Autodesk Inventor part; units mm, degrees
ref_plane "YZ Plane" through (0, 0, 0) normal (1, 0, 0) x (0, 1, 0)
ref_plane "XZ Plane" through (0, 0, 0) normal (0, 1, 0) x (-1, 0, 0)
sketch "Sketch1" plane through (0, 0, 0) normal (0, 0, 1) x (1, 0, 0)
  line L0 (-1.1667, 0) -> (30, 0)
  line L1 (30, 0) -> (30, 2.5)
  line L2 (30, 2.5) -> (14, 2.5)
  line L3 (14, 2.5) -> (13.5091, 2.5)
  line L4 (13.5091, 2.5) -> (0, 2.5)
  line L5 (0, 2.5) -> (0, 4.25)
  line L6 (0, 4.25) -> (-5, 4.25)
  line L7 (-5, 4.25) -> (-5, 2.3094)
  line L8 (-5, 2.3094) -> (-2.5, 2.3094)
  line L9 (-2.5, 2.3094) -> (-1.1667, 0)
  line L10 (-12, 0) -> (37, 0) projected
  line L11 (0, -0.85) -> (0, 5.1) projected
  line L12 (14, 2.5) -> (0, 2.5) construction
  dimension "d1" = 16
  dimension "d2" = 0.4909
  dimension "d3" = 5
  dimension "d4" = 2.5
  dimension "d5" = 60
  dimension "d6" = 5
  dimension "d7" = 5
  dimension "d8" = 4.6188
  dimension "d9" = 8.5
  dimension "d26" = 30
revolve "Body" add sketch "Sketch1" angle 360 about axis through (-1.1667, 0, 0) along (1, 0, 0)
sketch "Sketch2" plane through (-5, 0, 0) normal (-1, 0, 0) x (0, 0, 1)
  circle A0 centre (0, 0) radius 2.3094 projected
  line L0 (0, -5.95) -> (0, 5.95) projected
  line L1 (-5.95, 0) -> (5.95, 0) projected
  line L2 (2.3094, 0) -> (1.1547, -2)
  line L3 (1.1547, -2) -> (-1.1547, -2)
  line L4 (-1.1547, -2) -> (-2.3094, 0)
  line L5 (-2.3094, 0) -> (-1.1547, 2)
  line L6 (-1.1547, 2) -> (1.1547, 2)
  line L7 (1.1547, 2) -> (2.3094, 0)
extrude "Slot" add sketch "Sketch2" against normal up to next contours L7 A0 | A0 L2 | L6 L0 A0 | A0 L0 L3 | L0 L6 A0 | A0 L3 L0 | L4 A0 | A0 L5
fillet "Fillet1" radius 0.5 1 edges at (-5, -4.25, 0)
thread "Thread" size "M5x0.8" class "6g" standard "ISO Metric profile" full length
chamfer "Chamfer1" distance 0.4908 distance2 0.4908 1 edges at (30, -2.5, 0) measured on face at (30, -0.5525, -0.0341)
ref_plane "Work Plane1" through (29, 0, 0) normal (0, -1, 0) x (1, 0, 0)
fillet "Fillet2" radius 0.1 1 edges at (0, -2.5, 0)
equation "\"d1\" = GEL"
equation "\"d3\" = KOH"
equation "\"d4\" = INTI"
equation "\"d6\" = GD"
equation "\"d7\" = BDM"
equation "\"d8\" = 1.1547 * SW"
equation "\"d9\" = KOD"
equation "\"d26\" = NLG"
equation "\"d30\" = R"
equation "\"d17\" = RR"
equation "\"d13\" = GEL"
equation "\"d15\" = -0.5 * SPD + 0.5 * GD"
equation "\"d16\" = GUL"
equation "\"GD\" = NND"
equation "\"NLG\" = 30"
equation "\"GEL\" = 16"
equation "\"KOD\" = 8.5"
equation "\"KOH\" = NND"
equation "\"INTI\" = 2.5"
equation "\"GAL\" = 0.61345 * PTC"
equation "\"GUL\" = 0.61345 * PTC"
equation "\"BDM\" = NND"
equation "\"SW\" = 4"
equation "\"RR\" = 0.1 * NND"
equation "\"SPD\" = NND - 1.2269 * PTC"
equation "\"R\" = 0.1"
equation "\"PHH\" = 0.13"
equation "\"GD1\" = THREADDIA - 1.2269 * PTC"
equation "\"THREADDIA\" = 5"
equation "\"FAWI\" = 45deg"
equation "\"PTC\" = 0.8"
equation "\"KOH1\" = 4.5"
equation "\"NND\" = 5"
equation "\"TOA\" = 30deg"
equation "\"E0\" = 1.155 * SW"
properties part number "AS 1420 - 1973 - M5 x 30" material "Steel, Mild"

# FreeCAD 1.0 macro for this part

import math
import FreeCAD as App
import Part
import Sketcher
Q = App.Units.Quantity


def edges_at(feature, points):
    """Names of the edges that pass closest to the given points."""
    edges = feature.Shape.Edges
    near = lambda p: min(range(len(edges)), key=lambda i: edges[i].distToShape(Part.Vertex(*p))[0])
    return sorted({f"Edge{near(p) + 1}" for p in points})


def add_polygon(sketch, points):
    """Adds a closed chain of lines whose ends are joined by coincident constraints."""
    first, n = sketch.GeometryCount, len(points)
    for a, b in zip(points, points[1:] + points[:1]):
        sketch.addGeometry(Part.LineSegment(App.Vector(*a, 0), App.Vector(*b, 0)), False)
    for i in range(n):
        sketch.addConstraint(Sketcher.Constraint("Coincident", first + i, 2, first + (i + 1) % n, 1))

doc = App.newDocument("Part")
body = doc.addObject("PartDesign::Body", "Body")

sketch1 = body.newObject("Sketcher::SketchObject", "Sketch")
sketch1.AttachmentSupport = (doc.getObject("XY_Plane"), [""])
sketch1.MapMode = "FlatFace"
add_polygon(sketch1, [(-2.5, 2.3), (-1.2, 0), (30, 0), (30, 2.5), (0, 2.5), (0, 4.2), (-5, 4.2), (-5, 2.3)])
sketch1.addConstraint([
    Sketcher.Constraint("Horizontal", 1),
    Sketcher.Constraint("Vertical", 2),
    Sketcher.Constraint("Horizontal", 3),
    Sketcher.Constraint("Vertical", 4),
    Sketcher.Constraint("Horizontal", 5),
    Sketcher.Constraint("Vertical", 6),
    Sketcher.Constraint("Horizontal", 7),
    Sketcher.Constraint("PointOnObject", 0, 2, -1),
    Sketcher.Constraint("PointOnObject", 3, 2, -2),
    Sketcher.Constraint("Equal", 7, 2),
    Sketcher.Constraint("DistanceX", 3, 2, 3, 1, Q("30 mm")),
    Sketcher.Constraint("DistanceX", 5, 2, 5, 1, Q("5 mm")),
    Sketcher.Constraint("DistanceX", 7, 1, 7, 2, Q("2.5 mm")),
    Sketcher.Constraint("Angle", 0, Q("-60.0006 deg")),
    Sketcher.Constraint("DistanceY", 4, 1, 4, 2, Q("1.75 mm")),
    Sketcher.Constraint("DistanceX", 1, 1, 1, 2, Q("31.1667 mm")),
])
revolution = body.newObject("PartDesign::Revolution", "Revolution")
revolution.Profile = sketch1
revolution.ReferenceAxis = (sketch1, ["H_Axis"])
revolution.Angle = 360

sketch2 = body.newObject("Sketcher::SketchObject", "Sketch001")
sketch2.AttachmentSupport = (doc.getObject("YZ_Plane"), [""])
sketch2.MapMode = "FlatFace"
sketch2.AttachmentOffset = App.Placement(App.Vector(0, 0, -5), App.Rotation())
sketch2.addGeometry([
    Part.LineSegment(App.Vector(2, 1.2, 0), App.Vector(0, 2.3, 0)),
    Part.ArcOfCircle(Part.Circle(App.Vector(0, 0, 0), App.Vector(0, 0, 1), 2.3), math.radians(30), math.radians(90)),
    Part.ArcOfCircle(Part.Circle(App.Vector(0, 0, 0), App.Vector(0, 0, 1), 2.3), math.radians(90), math.radians(150)),
    Part.LineSegment(App.Vector(0, 2.3, 0), App.Vector(-2, 1.2, 0)),
    Part.ArcOfCircle(Part.Circle(App.Vector(0, 0, 0), App.Vector(0, 0, 1), 2.3), math.radians(-30), math.radians(30)),
    Part.LineSegment(App.Vector(2, -1.2, 0), App.Vector(2, 1.2, 0)),
    Part.LineSegment(App.Vector(-2, 1.2, 0), App.Vector(-2, -1.2, 0)),
    Part.ArcOfCircle(Part.Circle(App.Vector(0, 0, 0), App.Vector(0, 0, 1), 2.3), math.radians(150), math.radians(210)),
    Part.LineSegment(App.Vector(-2, -1.2, 0), App.Vector(0, -2.3, 0)),
    Part.ArcOfCircle(Part.Circle(App.Vector(0, 0, 0), App.Vector(0, 0, 1), 2.3), math.radians(-150), math.radians(-90)),
    Part.ArcOfCircle(Part.Circle(App.Vector(0, 0, 0), App.Vector(0, 0, 1), 2.3), math.radians(-90), math.radians(-30)),
    Part.LineSegment(App.Vector(0, -2.3, 0), App.Vector(2, -1.2, 0)),
], False)
sketch2.addConstraint([
    Sketcher.Constraint("Coincident", 0, 1, 1, 1),
    Sketcher.Constraint("Coincident", 1, 2, 0, 2),
    Sketcher.Constraint("Coincident", 2, 1, 3, 1),
    Sketcher.Constraint("Coincident", 3, 2, 2, 2),
    Sketcher.Constraint("Coincident", 4, 1, 5, 1),
    Sketcher.Constraint("Coincident", 5, 2, 4, 2),
    Sketcher.Constraint("Coincident", 6, 1, 7, 1),
    Sketcher.Constraint("Coincident", 7, 2, 6, 2),
    Sketcher.Constraint("Coincident", 8, 1, 9, 1),
    Sketcher.Constraint("Coincident", 9, 2, 8, 2),
    Sketcher.Constraint("Coincident", 10, 1, 11, 1),
    Sketcher.Constraint("Coincident", 11, 2, 10, 2),
    Sketcher.Constraint("Vertical", 5),
    Sketcher.Constraint("Vertical", 6),
    Sketcher.Constraint("Coincident", 1, 3, -1, 1),
    Sketcher.Constraint("Coincident", 2, 3, -1, 1),
    Sketcher.Constraint("Coincident", 4, 3, -1, 1),
    Sketcher.Constraint("Coincident", 7, 3, -1, 1),
    Sketcher.Constraint("Coincident", 9, 3, -1, 1),
    Sketcher.Constraint("Coincident", 10, 3, -1, 1),
    Sketcher.Constraint("Coincident", 2, 1, 1, 2),
    Sketcher.Constraint("Coincident", 5, 2, 0, 1),
    Sketcher.Constraint("Coincident", 6, 1, 3, 2),
    Sketcher.Constraint("Coincident", 8, 1, 7, 2),
    Sketcher.Constraint("Coincident", 10, 1, 9, 2),
    Sketcher.Constraint("PointOnObject", 1, 2, -2),
    Sketcher.Constraint("PointOnObject", 9, 2, -2),
    Sketcher.Constraint("Parallel", 0, 8),
    Sketcher.Constraint("Parallel", 3, 11),
    Sketcher.Constraint("Angle", 0, Q("150 deg")),
    Sketcher.Constraint("DistanceX", -1, 1, 0, 1, Q("2 mm")),
])
pad1 = body.newObject("PartDesign::Pad", "Pad")
pad1.Profile = sketch2
pad1.Length = 2.6786
doc.recompute()

fillet = body.newObject("PartDesign::Fillet", "Fillet")
fillet.Base = (pad1, edges_at(pad1, [(-5, -4.25, 0)]))
fillet.Radius = 0.5
doc.recompute()

chamfer = body.newObject("PartDesign::Chamfer", "Chamfer")
chamfer.Base = (fillet, edges_at(fillet, [(30, -2.5, 0)]))
chamfer.ChamferType = "Two distances"
chamfer.Size = 0.4908
chamfer.Size2 = 0.4908
doc.recompute()

fillet2 = body.newObject("PartDesign::Fillet", "Fillet001")
fillet2.Base = (chamfer, edges_at(chamfer, [(0, -2.5, 0)]))
fillet2.Radius = 0.1

doc.recompute()
